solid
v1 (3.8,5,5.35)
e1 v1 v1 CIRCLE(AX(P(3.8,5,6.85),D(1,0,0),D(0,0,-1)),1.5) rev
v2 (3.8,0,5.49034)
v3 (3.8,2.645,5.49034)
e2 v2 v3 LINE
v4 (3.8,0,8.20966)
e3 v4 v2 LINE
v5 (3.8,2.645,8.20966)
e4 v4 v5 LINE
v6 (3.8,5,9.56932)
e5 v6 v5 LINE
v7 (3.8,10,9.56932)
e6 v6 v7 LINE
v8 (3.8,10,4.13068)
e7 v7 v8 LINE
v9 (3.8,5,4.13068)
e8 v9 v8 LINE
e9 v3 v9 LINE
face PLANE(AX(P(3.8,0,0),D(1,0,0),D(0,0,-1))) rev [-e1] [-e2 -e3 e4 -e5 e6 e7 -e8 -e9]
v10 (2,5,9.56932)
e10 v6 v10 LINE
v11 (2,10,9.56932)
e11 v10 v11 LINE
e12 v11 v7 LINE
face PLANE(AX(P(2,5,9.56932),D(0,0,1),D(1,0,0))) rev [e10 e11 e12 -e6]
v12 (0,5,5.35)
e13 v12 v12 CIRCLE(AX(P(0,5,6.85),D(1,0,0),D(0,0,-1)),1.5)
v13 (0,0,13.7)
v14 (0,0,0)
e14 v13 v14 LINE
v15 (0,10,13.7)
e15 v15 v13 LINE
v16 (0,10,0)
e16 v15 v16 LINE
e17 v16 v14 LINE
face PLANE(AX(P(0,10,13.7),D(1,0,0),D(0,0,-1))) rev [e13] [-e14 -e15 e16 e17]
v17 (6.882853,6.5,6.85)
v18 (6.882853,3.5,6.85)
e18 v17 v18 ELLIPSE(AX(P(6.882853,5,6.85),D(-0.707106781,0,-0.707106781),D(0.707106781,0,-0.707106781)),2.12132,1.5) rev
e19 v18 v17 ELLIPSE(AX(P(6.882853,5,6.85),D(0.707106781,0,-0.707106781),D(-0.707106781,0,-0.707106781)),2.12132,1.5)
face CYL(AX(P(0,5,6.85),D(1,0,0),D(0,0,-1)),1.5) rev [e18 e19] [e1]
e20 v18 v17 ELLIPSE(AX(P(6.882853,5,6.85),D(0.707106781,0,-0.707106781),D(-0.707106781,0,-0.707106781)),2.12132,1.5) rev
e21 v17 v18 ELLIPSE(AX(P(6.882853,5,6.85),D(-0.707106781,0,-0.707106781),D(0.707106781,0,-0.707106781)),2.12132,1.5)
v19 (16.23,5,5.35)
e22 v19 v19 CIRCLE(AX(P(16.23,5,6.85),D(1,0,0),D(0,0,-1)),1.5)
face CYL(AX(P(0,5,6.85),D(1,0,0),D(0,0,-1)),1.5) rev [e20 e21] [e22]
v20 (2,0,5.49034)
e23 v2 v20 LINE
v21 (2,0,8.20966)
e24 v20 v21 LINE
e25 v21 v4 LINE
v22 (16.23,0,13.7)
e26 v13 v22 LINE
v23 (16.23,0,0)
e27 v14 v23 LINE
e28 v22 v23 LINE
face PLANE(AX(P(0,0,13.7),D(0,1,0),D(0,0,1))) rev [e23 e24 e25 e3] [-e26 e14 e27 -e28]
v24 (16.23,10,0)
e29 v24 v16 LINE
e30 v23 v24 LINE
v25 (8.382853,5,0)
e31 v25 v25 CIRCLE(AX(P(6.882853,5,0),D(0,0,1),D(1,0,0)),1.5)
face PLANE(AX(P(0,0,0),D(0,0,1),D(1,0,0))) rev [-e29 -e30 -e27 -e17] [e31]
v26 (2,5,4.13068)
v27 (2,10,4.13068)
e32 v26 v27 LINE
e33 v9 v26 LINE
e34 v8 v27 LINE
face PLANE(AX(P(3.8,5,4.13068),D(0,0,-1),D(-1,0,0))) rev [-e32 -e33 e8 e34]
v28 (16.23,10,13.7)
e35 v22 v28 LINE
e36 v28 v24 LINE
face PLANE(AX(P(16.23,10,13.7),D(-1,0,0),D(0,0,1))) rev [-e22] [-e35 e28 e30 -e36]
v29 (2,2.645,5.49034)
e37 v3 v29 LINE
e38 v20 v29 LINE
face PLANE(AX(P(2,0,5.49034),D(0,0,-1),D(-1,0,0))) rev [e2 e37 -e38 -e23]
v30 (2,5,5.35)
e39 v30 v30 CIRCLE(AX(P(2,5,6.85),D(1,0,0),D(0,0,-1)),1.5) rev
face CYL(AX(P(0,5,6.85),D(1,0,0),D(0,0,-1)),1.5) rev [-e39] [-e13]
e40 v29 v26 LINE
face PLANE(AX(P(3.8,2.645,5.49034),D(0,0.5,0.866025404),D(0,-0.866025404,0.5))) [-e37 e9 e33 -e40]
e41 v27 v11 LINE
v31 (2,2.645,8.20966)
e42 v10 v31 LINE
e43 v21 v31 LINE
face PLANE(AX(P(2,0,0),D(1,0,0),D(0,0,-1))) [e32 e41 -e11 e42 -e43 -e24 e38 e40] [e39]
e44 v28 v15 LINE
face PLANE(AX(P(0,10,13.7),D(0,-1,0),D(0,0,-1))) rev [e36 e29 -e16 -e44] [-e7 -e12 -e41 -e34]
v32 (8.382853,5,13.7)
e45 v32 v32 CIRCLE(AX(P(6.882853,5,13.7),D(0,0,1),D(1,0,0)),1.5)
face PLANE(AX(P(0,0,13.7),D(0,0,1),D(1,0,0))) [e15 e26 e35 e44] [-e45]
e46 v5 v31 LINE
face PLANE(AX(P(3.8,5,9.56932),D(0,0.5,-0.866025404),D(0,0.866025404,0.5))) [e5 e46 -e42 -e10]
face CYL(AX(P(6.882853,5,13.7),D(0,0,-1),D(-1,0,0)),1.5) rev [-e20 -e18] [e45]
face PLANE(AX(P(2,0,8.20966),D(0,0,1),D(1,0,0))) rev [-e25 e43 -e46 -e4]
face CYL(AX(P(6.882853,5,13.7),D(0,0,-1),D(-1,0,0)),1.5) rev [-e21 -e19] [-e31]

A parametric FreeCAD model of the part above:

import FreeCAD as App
import Part
import Sketcher
from FreeCAD import Vector
Q = App.Units.Quantity

doc = App.newDocument("Part")
body = doc.addObject("PartDesign::Body", "Body")

# Sketch on XY plane
sketch1 = body.newObject("Sketcher::SketchObject", "Sketch")
sketch1.AttachmentSupport = (doc.getObject("XY_Plane"), [""])
sketch1.MapMode = "FlatFace"
sketch1.addGeometry(Part.LineSegment(Vector(0, 10, 0), Vector(0, 0, 0)), False)
sketch1.addGeometry(Part.LineSegment(Vector(0, 0, 0), Vector(16.23, 0, 0)), False)
sketch1.addGeometry(Part.LineSegment(Vector(16.23, 0, 0), Vector(16.23, 10, 0)), False)
sketch1.addGeometry(Part.LineSegment(Vector(16.23, 10, 0), Vector(0, 10, 0)), False)
sketch1.addGeometry(Part.Circle(Vector(6.882853, 5, 0), Vector(0, 0, 1), 1.5), False)
sketch1.addConstraint(Sketcher.Constraint("Coincident", 0, 2, 1, 1))
sketch1.addConstraint(Sketcher.Constraint("Coincident", 1, 2, 2, 1))
sketch1.addConstraint(Sketcher.Constraint("Coincident", 2, 2, 3, 1))
sketch1.addConstraint(Sketcher.Constraint("Coincident", 3, 2, 0, 1))
sketch1.addConstraint(Sketcher.Constraint("Vertical", 0))
sketch1.addConstraint(Sketcher.Constraint("Horizontal", 1))
sketch1.addConstraint(Sketcher.Constraint("Vertical", 2))
sketch1.addConstraint(Sketcher.Constraint("Horizontal", 3))
sketch1.addConstraint(Sketcher.Constraint("Coincident", 0, 2, -1, 1))
sketch1.addConstraint(Sketcher.Constraint("Diameter", 4, Q("3 mm")))
sketch1.addConstraint(Sketcher.Constraint("DistanceY", 0, 2, 0, 1, Q("10 mm")))
sketch1.addConstraint(Sketcher.Constraint("DistanceY", -1, 1, 4, 3, Q("5 mm")))
sketch1.addConstraint(Sketcher.Constraint("DistanceX", 1, 1, 1, 2, Q("16.23 mm")))
sketch1.addConstraint(Sketcher.Constraint("DistanceX", -1, 1, 4, 3, Q("6.882853 mm")))
pad1 = body.newObject("PartDesign::Pad", "Pad")
pad1.Profile = sketch1
pad1.Length = 13.7

# Sketch on YZ plane
sketch2 = body.newObject("Sketcher::SketchObject", "Sketch001")
sketch2.AttachmentSupport = (doc.getObject("YZ_Plane"), [""])
sketch2.MapMode = "FlatFace"
sketch2.AttachmentOffset = App.Placement(Vector(0, 0, 16.23), App.Rotation())
sketch2.addGeometry(Part.Circle(Vector(5, 6.85, 0), Vector(0, 0, 1), 1.5), False)
sketch2.addConstraint(Sketcher.Constraint("Diameter", 0, Q("3 mm")))
sketch2.addConstraint(Sketcher.Constraint("DistanceX", -1, 1, 0, 3, Q("5 mm")))
sketch2.addConstraint(Sketcher.Constraint("DistanceY", -1, 1, 0, 3, Q("6.85 mm")))
pocket1 = body.newObject("PartDesign::Pocket", "Pocket")
pocket1.Profile = sketch2
pocket1.Type = "ThroughAll"

# Sketch on YZ plane
sketch3 = body.newObject("Sketcher::SketchObject", "Sketch002")
sketch3.AttachmentSupport = (doc.getObject("YZ_Plane"), [""])
sketch3.MapMode = "FlatFace"
sketch3.AttachmentOffset = App.Placement(Vector(0, 0, 2), App.Rotation())
sketch3.addGeometry(Part.LineSegment(Vector(2.645, 5.49034, 0), Vector(5, 4.13068, 0)), False)
sketch3.addGeometry(Part.LineSegment(Vector(5, 4.13068, 0), Vector(7.355, 5.49034, 0)), False)
sketch3.addGeometry(Part.LineSegment(Vector(7.355, 5.49034, 0), Vector(7.355, 8.20966, 0)), False)
sketch3.addGeometry(Part.LineSegment(Vector(7.355, 8.20966, 0), Vector(5, 9.56932, 0)), False)
sketch3.addGeometry(Part.LineSegment(Vector(5, 9.56932, 0), Vector(2.645, 8.20966, 0)), False)
sketch3.addGeometry(Part.LineSegment(Vector(2.645, 8.20966, 0), Vector(2.645, 5.49034, 0)), False)
sketch3.addConstraint(Sketcher.Constraint("Coincident", 0, 2, 1, 1))
sketch3.addConstraint(Sketcher.Constraint("Coincident", 1, 2, 2, 1))
sketch3.addConstraint(Sketcher.Constraint("Coincident", 2, 2, 3, 1))
sketch3.addConstraint(Sketcher.Constraint("Coincident", 3, 2, 4, 1))
sketch3.addConstraint(Sketcher.Constraint("Coincident", 4, 2, 5, 1))
sketch3.addConstraint(Sketcher.Constraint("Coincident", 5, 2, 0, 1))
sketch3.addConstraint(Sketcher.Constraint("Vertical", 2))
sketch3.addConstraint(Sketcher.Constraint("Vertical", 5))
sketch3.addConstraint(Sketcher.Constraint("Parallel", 0, 3))
sketch3.addConstraint(Sketcher.Constraint("Parallel", 1, 4))
sketch3.addConstraint(Sketcher.Constraint("Horizontal", 2, 2, 4, 2))
sketch3.addConstraint(Sketcher.Constraint("Horizontal", 1, 2, 5, 2))
sketch3.addConstraint(Sketcher.Constraint("Vertical", 0, 2, 3, 2))
sketch3.addConstraint(Sketcher.Constraint("Angle", 0, Q("-30 deg")))
sketch3.addConstraint(Sketcher.Constraint("DistanceX", -1, 1, 0, 2, Q("5 mm")))
sketch3.addConstraint(Sketcher.Constraint("DistanceX", 4, 2, 2, 2, Q("4.71 mm")))
sketch3.addConstraint(Sketcher.Constraint("DistanceY", 2, 1, 2, 2, Q("2.71932 mm")))
sketch3.addConstraint(Sketcher.Constraint("DistanceY", -1, 1, 0, 2, Q("4.13068 mm")))
pocket2 = body.newObject("PartDesign::Pocket", "Pocket001")
pocket2.Profile = sketch3
pocket2.Length = 1.8
pocket2.Reversed = True

# Sketch on XZ plane
sketch4 = body.newObject("Sketcher::SketchObject", "Sketch003")
sketch4.AttachmentSupport = (doc.getObject("XZ_Plane"), [""])
sketch4.MapMode = "FlatFace"
sketch4.AttachmentOffset = App.Placement(Vector(0, 0, -10), App.Rotation())
sketch4.addGeometry(Part.LineSegment(Vector(2, 4.13068, 0), Vector(2, 9.56932, 0)), False)
sketch4.addGeometry(Part.LineSegment(Vector(2, 9.56932, 0), Vector(3.8, 9.56932, 0)), False)
sketch4.addGeometry(Part.LineSegment(Vector(3.8, 9.56932, 0), Vector(3.8, 4.13068, 0)), False)
sketch4.addGeometry(Part.LineSegment(Vector(3.8, 4.13068, 0), Vector(2, 4.13068, 0)), False)
sketch4.addConstraint(Sketcher.Constraint("Coincident", 0, 2, 1, 1))
sketch4.addConstraint(Sketcher.Constraint("Coincident", 1, 2, 2, 1))
sketch4.addConstraint(Sketcher.Constraint("Coincident", 2, 2, 3, 1))
sketch4.addConstraint(Sketcher.Constraint("Coincident", 3, 2, 0, 1))
sketch4.addConstraint(Sketcher.Constraint("Vertical", 0))
sketch4.addConstraint(Sketcher.Constraint("Horizontal", 1))
sketch4.addConstraint(Sketcher.Constraint("Vertical", 2))
sketch4.addConstraint(Sketcher.Constraint("Horizontal", 3))
sketch4.addConstraint(Sketcher.Constraint("DistanceX", 1, 1, 1, 2, Q("1.8 mm")))
sketch4.addConstraint(Sketcher.Constraint("DistanceX", -1, 1, 0, 2, Q("2 mm")))
sketch4.addConstraint(Sketcher.Constraint("DistanceY", 0, 1, 0, 2, Q("5.43864 mm")))
sketch4.addConstraint(Sketcher.Constraint("DistanceY", -1, 1, 0, 2, Q("9.56932 mm")))
pocket3 = body.newObject("PartDesign::Pocket", "Pocket002")
pocket3.Profile = sketch4
pocket3.Length = 5
pocket3.Reversed = True

# Sketch on XZ plane
sketch5 = body.newObject("Sketcher::SketchObject", "Sketch004")
sketch5.AttachmentSupport = (doc.getObject("XZ_Plane"), [""])
sketch5.MapMode = "FlatFace"
sketch5.AttachmentOffset = App.Placement(Vector(0, 0, -2.645), App.Rotation())
sketch5.addGeometry(Part.LineSegment(Vector(2, 5.49034, 0), Vector(2, 8.20966, 0)), False)
sketch5.addGeometry(Part.LineSegment(Vector(2, 8.20966, 0), Vector(3.8, 8.20966, 0)), False)
sketch5.addGeometry(Part.LineSegment(Vector(3.8, 8.20966, 0), Vector(3.8, 5.49034, 0)), False)
sketch5.addGeometry(Part.LineSegment(Vector(3.8, 5.49034, 0), Vector(2, 5.49034, 0)), False)
sketch5.addConstraint(Sketcher.Constraint("Coincident", 0, 2, 1, 1))
sketch5.addConstraint(Sketcher.Constraint("Coincident", 1, 2, 2, 1))
sketch5.addConstraint(Sketcher.Constraint("Coincident", 2, 2, 3, 1))
sketch5.addConstraint(Sketcher.Constraint("Coincident", 3, 2, 0, 1))
sketch5.addConstraint(Sketcher.Constraint("Vertical", 0))
sketch5.addConstraint(Sketcher.Constraint("Horizontal", 1))
sketch5.addConstraint(Sketcher.Constraint("Vertical", 2))
sketch5.addConstraint(Sketcher.Constraint("Horizontal", 3))
sketch5.addConstraint(Sketcher.Constraint("DistanceX", 1, 1, 1, 2, Q("1.8 mm")))
sketch5.addConstraint(Sketcher.Constraint("DistanceX", -1, 1, 0, 2, Q("2 mm")))
sketch5.addConstraint(Sketcher.Constraint("DistanceY", 0, 1, 0, 2, Q("2.71932 mm")))
sketch5.addConstraint(Sketcher.Constraint("DistanceY", -1, 1, 0, 2, Q("8.20966 mm")))
pocket4 = body.newObject("PartDesign::Pocket", "Pocket003")
pocket4.Profile = sketch5
pocket4.Type = "ThroughAll"
pocket4.Reversed = True

doc.recompute()
